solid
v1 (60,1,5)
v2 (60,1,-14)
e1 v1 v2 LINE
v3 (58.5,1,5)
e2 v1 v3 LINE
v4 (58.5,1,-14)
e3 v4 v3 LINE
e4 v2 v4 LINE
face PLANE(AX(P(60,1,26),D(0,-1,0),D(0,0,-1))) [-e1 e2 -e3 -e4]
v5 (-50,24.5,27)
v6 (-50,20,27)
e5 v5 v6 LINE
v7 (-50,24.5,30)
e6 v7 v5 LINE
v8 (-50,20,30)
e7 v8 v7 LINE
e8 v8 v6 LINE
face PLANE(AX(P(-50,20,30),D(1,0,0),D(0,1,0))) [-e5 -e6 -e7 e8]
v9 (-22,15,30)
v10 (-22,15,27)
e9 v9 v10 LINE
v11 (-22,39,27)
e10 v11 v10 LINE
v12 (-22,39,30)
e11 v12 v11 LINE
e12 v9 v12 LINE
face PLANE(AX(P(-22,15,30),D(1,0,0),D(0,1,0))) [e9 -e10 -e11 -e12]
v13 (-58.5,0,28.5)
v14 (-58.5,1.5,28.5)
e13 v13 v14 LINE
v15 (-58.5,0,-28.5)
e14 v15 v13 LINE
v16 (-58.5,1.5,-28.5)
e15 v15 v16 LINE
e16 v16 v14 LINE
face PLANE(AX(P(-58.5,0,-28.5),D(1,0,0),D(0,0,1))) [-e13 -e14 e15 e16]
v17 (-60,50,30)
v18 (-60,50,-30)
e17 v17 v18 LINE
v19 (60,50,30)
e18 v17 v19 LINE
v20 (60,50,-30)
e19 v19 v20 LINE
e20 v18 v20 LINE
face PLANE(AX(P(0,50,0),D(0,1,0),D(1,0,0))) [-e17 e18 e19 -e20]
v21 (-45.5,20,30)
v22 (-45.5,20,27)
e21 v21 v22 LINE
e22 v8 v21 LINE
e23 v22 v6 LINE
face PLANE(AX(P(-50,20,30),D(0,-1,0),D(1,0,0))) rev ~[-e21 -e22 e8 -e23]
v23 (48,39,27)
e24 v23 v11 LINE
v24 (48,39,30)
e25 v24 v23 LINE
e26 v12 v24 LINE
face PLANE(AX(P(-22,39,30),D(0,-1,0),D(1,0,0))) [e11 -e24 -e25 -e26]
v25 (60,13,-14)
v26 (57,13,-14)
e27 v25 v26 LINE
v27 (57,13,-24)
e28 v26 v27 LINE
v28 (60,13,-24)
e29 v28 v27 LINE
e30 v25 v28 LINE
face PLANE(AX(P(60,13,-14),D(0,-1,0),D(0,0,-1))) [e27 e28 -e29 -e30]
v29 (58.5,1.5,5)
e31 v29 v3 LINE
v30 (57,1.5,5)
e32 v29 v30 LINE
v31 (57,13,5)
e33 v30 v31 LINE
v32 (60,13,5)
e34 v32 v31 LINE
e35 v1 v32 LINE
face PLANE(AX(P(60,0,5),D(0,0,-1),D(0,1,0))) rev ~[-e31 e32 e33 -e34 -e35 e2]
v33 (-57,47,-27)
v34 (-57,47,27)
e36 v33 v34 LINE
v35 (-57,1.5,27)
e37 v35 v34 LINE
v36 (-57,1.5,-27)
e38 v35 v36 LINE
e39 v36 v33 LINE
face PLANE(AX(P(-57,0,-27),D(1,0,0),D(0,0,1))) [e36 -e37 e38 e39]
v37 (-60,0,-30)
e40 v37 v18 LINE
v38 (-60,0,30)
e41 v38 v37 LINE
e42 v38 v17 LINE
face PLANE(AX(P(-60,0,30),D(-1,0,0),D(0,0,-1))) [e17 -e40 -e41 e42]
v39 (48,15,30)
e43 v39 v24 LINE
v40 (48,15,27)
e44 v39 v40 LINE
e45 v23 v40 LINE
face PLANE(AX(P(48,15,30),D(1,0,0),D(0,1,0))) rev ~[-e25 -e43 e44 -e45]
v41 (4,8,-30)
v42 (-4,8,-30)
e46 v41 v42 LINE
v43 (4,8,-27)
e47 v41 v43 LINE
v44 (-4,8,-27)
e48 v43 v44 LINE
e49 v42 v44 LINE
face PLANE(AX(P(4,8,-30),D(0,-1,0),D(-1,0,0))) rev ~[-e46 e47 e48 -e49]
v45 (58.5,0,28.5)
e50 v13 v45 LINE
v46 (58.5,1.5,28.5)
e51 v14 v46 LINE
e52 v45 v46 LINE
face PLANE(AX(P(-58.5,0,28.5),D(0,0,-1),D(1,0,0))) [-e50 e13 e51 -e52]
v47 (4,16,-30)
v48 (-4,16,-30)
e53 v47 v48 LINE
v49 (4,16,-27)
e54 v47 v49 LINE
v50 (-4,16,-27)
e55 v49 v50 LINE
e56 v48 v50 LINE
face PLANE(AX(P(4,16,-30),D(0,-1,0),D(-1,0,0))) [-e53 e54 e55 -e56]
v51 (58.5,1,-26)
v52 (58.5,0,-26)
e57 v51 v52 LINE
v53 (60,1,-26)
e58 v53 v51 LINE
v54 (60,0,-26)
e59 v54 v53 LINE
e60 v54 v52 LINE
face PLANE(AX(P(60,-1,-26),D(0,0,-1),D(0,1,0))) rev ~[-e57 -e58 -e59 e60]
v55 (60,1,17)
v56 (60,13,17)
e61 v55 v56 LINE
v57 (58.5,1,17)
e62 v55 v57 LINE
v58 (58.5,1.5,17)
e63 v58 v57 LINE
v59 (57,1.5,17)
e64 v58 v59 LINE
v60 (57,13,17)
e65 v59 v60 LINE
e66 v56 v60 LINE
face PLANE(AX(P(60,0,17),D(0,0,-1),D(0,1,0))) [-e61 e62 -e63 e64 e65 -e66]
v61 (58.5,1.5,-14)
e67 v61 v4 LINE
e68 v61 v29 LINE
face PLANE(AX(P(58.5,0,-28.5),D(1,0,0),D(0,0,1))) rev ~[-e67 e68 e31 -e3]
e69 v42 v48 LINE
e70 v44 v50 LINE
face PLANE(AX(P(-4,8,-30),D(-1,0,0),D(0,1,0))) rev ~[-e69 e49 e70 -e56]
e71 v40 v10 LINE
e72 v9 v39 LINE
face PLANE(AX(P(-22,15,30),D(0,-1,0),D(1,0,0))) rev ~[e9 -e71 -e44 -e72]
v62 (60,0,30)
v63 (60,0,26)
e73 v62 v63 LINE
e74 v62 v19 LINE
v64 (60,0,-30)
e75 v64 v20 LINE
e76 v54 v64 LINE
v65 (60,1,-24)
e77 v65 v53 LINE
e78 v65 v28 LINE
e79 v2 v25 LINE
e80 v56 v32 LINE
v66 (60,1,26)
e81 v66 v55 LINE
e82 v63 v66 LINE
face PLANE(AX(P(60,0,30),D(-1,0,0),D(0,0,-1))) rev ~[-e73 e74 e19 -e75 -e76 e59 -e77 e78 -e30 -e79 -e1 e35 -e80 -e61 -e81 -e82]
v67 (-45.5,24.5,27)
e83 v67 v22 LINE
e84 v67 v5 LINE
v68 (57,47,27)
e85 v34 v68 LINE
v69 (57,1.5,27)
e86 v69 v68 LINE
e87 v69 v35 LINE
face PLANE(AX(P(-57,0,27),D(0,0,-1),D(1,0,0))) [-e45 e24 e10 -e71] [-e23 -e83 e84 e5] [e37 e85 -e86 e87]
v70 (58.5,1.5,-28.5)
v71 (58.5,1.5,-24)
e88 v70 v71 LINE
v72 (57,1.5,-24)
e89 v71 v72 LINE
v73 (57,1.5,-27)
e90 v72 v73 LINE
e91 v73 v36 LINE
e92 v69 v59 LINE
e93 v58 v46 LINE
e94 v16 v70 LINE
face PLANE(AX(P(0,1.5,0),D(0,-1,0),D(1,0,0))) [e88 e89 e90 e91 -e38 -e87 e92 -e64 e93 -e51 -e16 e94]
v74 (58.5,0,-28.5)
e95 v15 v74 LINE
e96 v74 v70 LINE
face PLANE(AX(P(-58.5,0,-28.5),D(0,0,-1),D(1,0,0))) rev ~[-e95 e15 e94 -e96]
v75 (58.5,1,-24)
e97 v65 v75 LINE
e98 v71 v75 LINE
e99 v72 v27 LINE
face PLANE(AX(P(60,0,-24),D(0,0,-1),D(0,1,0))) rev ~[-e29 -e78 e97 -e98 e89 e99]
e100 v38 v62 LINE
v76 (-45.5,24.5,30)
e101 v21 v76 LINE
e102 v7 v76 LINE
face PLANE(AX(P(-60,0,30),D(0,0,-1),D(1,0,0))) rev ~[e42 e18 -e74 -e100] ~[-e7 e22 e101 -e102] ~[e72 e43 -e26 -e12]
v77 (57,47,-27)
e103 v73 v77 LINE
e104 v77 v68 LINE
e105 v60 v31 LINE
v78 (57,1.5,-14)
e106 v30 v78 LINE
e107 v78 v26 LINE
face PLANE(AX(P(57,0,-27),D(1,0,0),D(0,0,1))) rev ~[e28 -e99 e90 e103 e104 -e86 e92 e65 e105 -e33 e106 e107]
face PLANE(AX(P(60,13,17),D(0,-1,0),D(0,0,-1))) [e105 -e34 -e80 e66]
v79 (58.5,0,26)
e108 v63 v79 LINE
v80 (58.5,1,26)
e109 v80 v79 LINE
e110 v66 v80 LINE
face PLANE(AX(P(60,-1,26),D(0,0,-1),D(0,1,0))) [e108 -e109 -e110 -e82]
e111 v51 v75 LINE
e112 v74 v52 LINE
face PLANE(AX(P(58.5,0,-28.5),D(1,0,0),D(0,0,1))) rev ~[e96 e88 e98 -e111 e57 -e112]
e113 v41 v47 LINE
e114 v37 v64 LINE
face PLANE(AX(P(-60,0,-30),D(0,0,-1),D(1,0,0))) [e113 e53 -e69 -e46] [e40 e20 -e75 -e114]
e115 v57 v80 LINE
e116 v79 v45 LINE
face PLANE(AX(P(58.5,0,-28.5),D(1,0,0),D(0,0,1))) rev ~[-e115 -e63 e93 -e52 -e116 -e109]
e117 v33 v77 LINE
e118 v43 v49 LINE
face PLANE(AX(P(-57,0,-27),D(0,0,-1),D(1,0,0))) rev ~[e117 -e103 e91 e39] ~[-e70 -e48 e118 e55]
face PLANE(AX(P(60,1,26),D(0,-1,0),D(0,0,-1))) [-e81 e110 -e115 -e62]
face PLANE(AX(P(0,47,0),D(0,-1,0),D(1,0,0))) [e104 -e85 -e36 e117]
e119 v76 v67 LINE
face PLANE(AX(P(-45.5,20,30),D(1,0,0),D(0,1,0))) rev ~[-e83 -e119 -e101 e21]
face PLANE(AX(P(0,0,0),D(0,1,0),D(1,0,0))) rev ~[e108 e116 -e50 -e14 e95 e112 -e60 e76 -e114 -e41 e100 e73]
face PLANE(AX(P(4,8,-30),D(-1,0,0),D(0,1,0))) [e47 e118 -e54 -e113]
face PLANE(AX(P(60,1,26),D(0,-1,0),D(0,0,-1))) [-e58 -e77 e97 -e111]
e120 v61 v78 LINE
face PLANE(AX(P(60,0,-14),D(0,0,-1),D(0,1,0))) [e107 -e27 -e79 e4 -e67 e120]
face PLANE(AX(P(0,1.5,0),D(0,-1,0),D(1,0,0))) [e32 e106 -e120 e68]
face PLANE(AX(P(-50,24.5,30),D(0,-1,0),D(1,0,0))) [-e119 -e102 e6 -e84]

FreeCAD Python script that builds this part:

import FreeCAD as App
import Part
import Sketcher

V = App.Vector
Q = App.Units.Quantity

doc = App.newDocument("Part")
body = doc.addObject("PartDesign::Body", "Body")

sketch1 = body.newObject("Sketcher::SketchObject", "Sketch")
sketch1.AttachmentSupport = (doc.getObject("XZ_Plane"), [""])
sketch1.MapMode = "FlatFace"
sketch1.addGeometry([
    Part.LineSegment(V(-60, -30, 0), V(-60, 30, 0)),
    Part.LineSegment(V(-60, 30, 0), V(60, 30, 0)),
    Part.LineSegment(V(60, 30, 0), V(60, -30, 0)),
    Part.LineSegment(V(60, -30, 0), V(-60, -30, 0)),
], False)
sketch1.addConstraint([
    Sketcher.Constraint("Coincident", 0, 2, 1, 1),
    Sketcher.Constraint("Coincident", 1, 2, 2, 1),
    Sketcher.Constraint("Coincident", 2, 2, 3, 1),
    Sketcher.Constraint("Coincident", 3, 2, 0, 1),
    Sketcher.Constraint("Vertical", 0),
    Sketcher.Constraint("Horizontal", 1),
    Sketcher.Constraint("Vertical", 2),
    Sketcher.Constraint("Horizontal", 3),
    Sketcher.Constraint("Symmetric", 0, 2, 2, 2, -1, 1),
    Sketcher.Constraint("DistanceX", 1, 1, 1, 2, Q("120 mm")),
    Sketcher.Constraint("DistanceY", 0, 1, 0, 2, Q("60 mm")),
])
pad1 = body.newObject("PartDesign::Pad", "Pad")
pad1.Profile = sketch1
pad1.Length = 50
pad1.Reversed = True

sketch2 = body.newObject("Sketcher::SketchObject", "Sketch001")
sketch2.AttachmentSupport = (doc.getObject("XZ_Plane"), [""])
sketch2.MapMode = "FlatFace"
sketch2.addGeometry([
    Part.LineSegment(V(-57, 27, 0), V(-57, -27, 0)),
    Part.LineSegment(V(-57, -27, 0), V(57, -27, 0)),
    Part.LineSegment(V(57, -27, 0), V(57, 27, 0)),
    Part.LineSegment(V(57, 27, 0), V(-57, 27, 0)),
], False)
sketch2.addConstraint([
    Sketcher.Constraint("Coincident", 0, 2, 1, 1),
    Sketcher.Constraint("Coincident", 1, 2, 2, 1),
    Sketcher.Constraint("Coincident", 2, 2, 3, 1),
    Sketcher.Constraint("Coincident", 3, 2, 0, 1),
    Sketcher.Constraint("Vertical", 0),
    Sketcher.Constraint("Horizontal", 1),
    Sketcher.Constraint("Vertical", 2),
    Sketcher.Constraint("Horizontal", 3),
    Sketcher.Constraint("Symmetric", 0, 2, 2, 2, -1, 1),
    Sketcher.Constraint("DistanceX", 1, 1, 1, 2, Q("114 mm")),
    Sketcher.Constraint("DistanceY", 0, 2, 0, 1, Q("54 mm")),
])
pocket1 = body.newObject("PartDesign::Pocket", "Pocket")
pocket1.Profile = sketch2
pocket1.Length = 47

sketch3 = body.newObject("Sketcher::SketchObject", "Sketch002")
sketch3.AttachmentSupport = (doc.getObject("XY_Plane"), [""])
sketch3.MapMode = "FlatFace"
sketch3.AttachmentOffset = App.Placement(V(0, 0, 30), App.Rotation())
sketch3.addGeometry([
    Part.LineSegment(V(-22, 39, 0), V(-22, 15, 0)),
    Part.LineSegment(V(-22, 15, 0), V(48, 15, 0)),
    Part.LineSegment(V(48, 15, 0), V(48, 39, 0)),
    Part.LineSegment(V(48, 39, 0), V(-22, 39, 0)),
], False)
sketch3.addConstraint([
    Sketcher.Constraint("Coincident", 0, 2, 1, 1),
    Sketcher.Constraint("Coincident", 1, 2, 2, 1),
    Sketcher.Constraint("Coincident", 2, 2, 3, 1),
    Sketcher.Constraint("Coincident", 3, 2, 0, 1),
    Sketcher.Constraint("Vertical", 0),
    Sketcher.Constraint("Horizontal", 1),
    Sketcher.Constraint("Vertical", 2),
    Sketcher.Constraint("Horizontal", 3),
    Sketcher.Constraint("DistanceX", 1, 1, 1, 2, Q("70 mm")),
    Sketcher.Constraint("DistanceY", 0, 2, 0, 1, Q("24 mm")),
    Sketcher.Constraint("DistanceX", 0, 2, -1, 1, Q("22 mm")),
    Sketcher.Constraint("DistanceY", -1, 1, 0, 2, Q("15 mm")),
])
pocket2 = body.newObject("PartDesign::Pocket", "Pocket001")
pocket2.Profile = sketch3
pocket2.Length = 7

sketch4 = body.newObject("Sketcher::SketchObject", "Sketch003")
sketch4.AttachmentSupport = (doc.getObject("XY_Plane"), [""])
sketch4.MapMode = "FlatFace"
sketch4.AttachmentOffset = App.Placement(V(0, 0, 30), App.Rotation())
sketch4.addGeometry([
    Part.LineSegment(V(-50, 24.5, 0), V(-50, 20, 0)),
    Part.LineSegment(V(-50, 20, 0), V(-45.5, 20, 0)),
    Part.LineSegment(V(-45.5, 20, 0), V(-45.5, 24.5, 0)),
    Part.LineSegment(V(-45.5, 24.5, 0), V(-50, 24.5, 0)),
], False)
sketch4.addConstraint([
    Sketcher.Constraint("Coincident", 0, 2, 1, 1),
    Sketcher.Constraint("Coincident", 1, 2, 2, 1),
    Sketcher.Constraint("Coincident", 2, 2, 3, 1),
    Sketcher.Constraint("Coincident", 3, 2, 0, 1),
    Sketcher.Constraint("Vertical", 0),
    Sketcher.Constraint("Horizontal", 1),
    Sketcher.Constraint("Vertical", 2),
    Sketcher.Constraint("Horizontal", 3),
    Sketcher.Constraint("Equal", 3, 0),
    Sketcher.Constraint("DistanceX", 1, 1, 1, 2, Q("4.5 mm")),
    Sketcher.Constraint("DistanceX", 0, 2, -1, 1, Q("50 mm")),
    Sketcher.Constraint("DistanceY", -1, 1, 0, 2, Q("20 mm")),
])
pocket3 = body.newObject("PartDesign::Pocket", "Pocket002")
pocket3.Profile = sketch4
pocket3.Length = 7

sketch5 = body.newObject("Sketcher::SketchObject", "Sketch004")
sketch5.AttachmentSupport = (doc.getObject("YZ_Plane"), [""])
sketch5.MapMode = "FlatFace"
sketch5.AttachmentOffset = App.Placement(V(0, 0, 60), App.Rotation())
sketch5.addGeometry([
    Part.LineSegment(V(13, 17, 0), V(0, 17, 0)),
    Part.LineSegment(V(0, 17, 0), V(0, 5, 0)),
    Part.LineSegment(V(0, 5, 0), V(13, 5, 0)),
    Part.LineSegment(V(13, 5, 0), V(13, 17, 0)),
    Part.LineSegment(V(13, -14, 0), V(0, -14, 0)),
    Part.LineSegment(V(0, -14, 0), V(0, -24, 0)),
    Part.LineSegment(V(0, -24, 0), V(13, -24, 0)),
    Part.LineSegment(V(13, -24, 0), V(13, -14, 0)),
], False)
sketch5.addConstraint([
    Sketcher.Constraint("Coincident", 0, 2, 1, 1),
    Sketcher.Constraint("Coincident", 1, 2, 2, 1),
    Sketcher.Constraint("Coincident", 2, 2, 3, 1),
    Sketcher.Constraint("Coincident", 3, 2, 0, 1),
    Sketcher.Constraint("Coincident", 4, 2, 5, 1),
    Sketcher.Constraint("Coincident", 5, 2, 6, 1),
    Sketcher.Constraint("Coincident", 6, 2, 7, 1),
    Sketcher.Constraint("Coincident", 7, 2, 4, 1),
    Sketcher.Constraint("Horizontal", 0),
    Sketcher.Constraint("Vertical", 1),
    Sketcher.Constraint("Horizontal", 2),
    Sketcher.Constraint("Vertical", 3),
    Sketcher.Constraint("Horizontal", 4),
    Sketcher.Constraint("Vertical", 5),
    Sketcher.Constraint("Horizontal", 6),
    Sketcher.Constraint("Vertical", 7),
    Sketcher.Constraint("PointOnObject", 0, 2, -2),
    Sketcher.Constraint("PointOnObject", 4, 2, -2),
    Sketcher.Constraint("Vertical", 3, 2, 6, 2),
    Sketcher.Constraint("DistanceX", 0, 2, 0, 1, Q("13 mm")),
    Sketcher.Constraint("DistanceY", 1, 2, 1, 1, Q("12 mm")),
    Sketcher.Constraint("DistanceY", 5, 2, 5, 1, Q("10 mm")),
    Sketcher.Constraint("DistanceY", -1, 1, 0, 2, Q("17 mm")),
    Sketcher.Constraint("DistanceY", 4, 2, -1, 1, Q("14 mm")),
])
pocket4 = body.newObject("PartDesign::Pocket", "Pocket003")
pocket4.Profile = sketch5
pocket4.Length = 3

sketch6 = body.newObject("Sketcher::SketchObject", "Sketch005")
sketch6.AttachmentSupport = (doc.getObject("YZ_Plane"), [""])
sketch6.MapMode = "FlatFace"
sketch6.AttachmentOffset = App.Placement(V(0, 0, 60), App.Rotation())
sketch6.addGeometry([
    Part.LineSegment(V(1, 26, 0), V(-1, 26, 0)),
    Part.LineSegment(V(-1, 26, 0), V(-1, -26, 0)),
    Part.LineSegment(V(-1, -26, 0), V(1, -26, 0)),
    Part.LineSegment(V(1, -26, 0), V(1, 26, 0)),
], False)
sketch6.addConstraint([
    Sketcher.Constraint("Coincident", 0, 2, 1, 1),
    Sketcher.Constraint("Coincident", 1, 2, 2, 1),
    Sketcher.Constraint("Coincident", 2, 2, 3, 1),
    Sketcher.Constraint("Coincident", 3, 2, 0, 1),
    Sketcher.Constraint("Horizontal", 0),
    Sketcher.Constraint("Vertical", 1),
    Sketcher.Constraint("Horizontal", 2),
    Sketcher.Constraint("Vertical", 3),
    Sketcher.Constraint("Symmetric", 0, 2, 2, 2, -1, 1),
    Sketcher.Constraint("DistanceX", 0, 2, 0, 1, Q("2 mm")),
    Sketcher.Constraint("DistanceY", 1, 2, 1, 1, Q("52 mm")),
])
pocket5 = body.newObject("PartDesign::Pocket", "Pocket004")
pocket5.Profile = sketch6
pocket5.Length = 13

sketch7 = body.newObject("Sketcher::SketchObject", "Sketch006")
sketch7.AttachmentSupport = (doc.getObject("XZ_Plane"), [""])
sketch7.MapMode = "FlatFace"
sketch7.addGeometry([
    Part.LineSegment(V(-58, 28, 0), V(-58, -28, 0)),
    Part.LineSegment(V(-58, -28, 0), V(58, -28, 0)),
    Part.LineSegment(V(58, -28, 0), V(58, 28, 0)),
    Part.LineSegment(V(58, 28, 0), V(-58, 28, 0)),
], False)
sketch7.addConstraint([
    Sketcher.Constraint("Coincident", 0, 2, 1, 1),
    Sketcher.Constraint("Coincident", 1, 2, 2, 1),
    Sketcher.Constraint("Coincident", 2, 2, 3, 1),
    Sketcher.Constraint("Coincident", 3, 2, 0, 1),
    Sketcher.Constraint("Vertical", 0),
    Sketcher.Constraint("Horizontal", 1),
    Sketcher.Constraint("Vertical", 2),
    Sketcher.Constraint("Horizontal", 3),
    Sketcher.Constraint("Symmetric", 0, 2, 2, 2, -1, 1),
    Sketcher.Constraint("DistanceX", 1, 1, 1, 2, Q("117 mm")),
    Sketcher.Constraint("DistanceY", 0, 2, 0, 1, Q("57 mm")),
])
pocket6 = body.newObject("PartDesign::Pocket", "Pocket005")
pocket6.Profile = sketch7
pocket6.Length = 1.5

sketch8 = body.newObject("Sketcher::SketchObject", "Sketch007")
sketch8.AttachmentSupport = (doc.getObject("XY_Plane"), [""])
sketch8.MapMode = "FlatFace"
sketch8.AttachmentOffset = App.Placement(V(0, 0, -30), App.Rotation())
sketch8.addGeometry([
    Part.LineSegment(V(4, 16, 0), V(4, 8, 0)),
    Part.LineSegment(V(4, 8, 0), V(-4, 8, 0)),
    Part.LineSegment(V(-4, 8, 0), V(-4, 16, 0)),
    Part.LineSegment(V(-4, 16, 0), V(4, 16, 0)),
], False)
sketch8.addConstraint([
    Sketcher.Constraint("Coincident", 0, 2, 1, 1),
    Sketcher.Constraint("Coincident", 1, 2, 2, 1),
    Sketcher.Constraint("Coincident", 2, 2, 3, 1),
    Sketcher.Constraint("Coincident", 3, 2, 0, 1),
    Sketcher.Constraint("Vertical", 0),
    Sketcher.Constraint("Horizontal", 1),
    Sketcher.Constraint("Vertical", 2),
    Sketcher.Constraint("Horizontal", 3),
    Sketcher.Constraint("Equal", 3, 0),
    Sketcher.Constraint("DistanceX", 1, 2, 1, 1, Q("8 mm")),
    Sketcher.Constraint("DistanceX", -1, 1, 0, 2, Q("4 mm")),
    Sketcher.Constraint("DistanceY", -1, 1, 0, 2, Q("8 mm")),
])
pocket7 = body.newObject("PartDesign::Pocket", "Pocket006")
pocket7.Profile = sketch8
pocket7.Length = 11.5
pocket7.Reversed = True

doc.recompute()
